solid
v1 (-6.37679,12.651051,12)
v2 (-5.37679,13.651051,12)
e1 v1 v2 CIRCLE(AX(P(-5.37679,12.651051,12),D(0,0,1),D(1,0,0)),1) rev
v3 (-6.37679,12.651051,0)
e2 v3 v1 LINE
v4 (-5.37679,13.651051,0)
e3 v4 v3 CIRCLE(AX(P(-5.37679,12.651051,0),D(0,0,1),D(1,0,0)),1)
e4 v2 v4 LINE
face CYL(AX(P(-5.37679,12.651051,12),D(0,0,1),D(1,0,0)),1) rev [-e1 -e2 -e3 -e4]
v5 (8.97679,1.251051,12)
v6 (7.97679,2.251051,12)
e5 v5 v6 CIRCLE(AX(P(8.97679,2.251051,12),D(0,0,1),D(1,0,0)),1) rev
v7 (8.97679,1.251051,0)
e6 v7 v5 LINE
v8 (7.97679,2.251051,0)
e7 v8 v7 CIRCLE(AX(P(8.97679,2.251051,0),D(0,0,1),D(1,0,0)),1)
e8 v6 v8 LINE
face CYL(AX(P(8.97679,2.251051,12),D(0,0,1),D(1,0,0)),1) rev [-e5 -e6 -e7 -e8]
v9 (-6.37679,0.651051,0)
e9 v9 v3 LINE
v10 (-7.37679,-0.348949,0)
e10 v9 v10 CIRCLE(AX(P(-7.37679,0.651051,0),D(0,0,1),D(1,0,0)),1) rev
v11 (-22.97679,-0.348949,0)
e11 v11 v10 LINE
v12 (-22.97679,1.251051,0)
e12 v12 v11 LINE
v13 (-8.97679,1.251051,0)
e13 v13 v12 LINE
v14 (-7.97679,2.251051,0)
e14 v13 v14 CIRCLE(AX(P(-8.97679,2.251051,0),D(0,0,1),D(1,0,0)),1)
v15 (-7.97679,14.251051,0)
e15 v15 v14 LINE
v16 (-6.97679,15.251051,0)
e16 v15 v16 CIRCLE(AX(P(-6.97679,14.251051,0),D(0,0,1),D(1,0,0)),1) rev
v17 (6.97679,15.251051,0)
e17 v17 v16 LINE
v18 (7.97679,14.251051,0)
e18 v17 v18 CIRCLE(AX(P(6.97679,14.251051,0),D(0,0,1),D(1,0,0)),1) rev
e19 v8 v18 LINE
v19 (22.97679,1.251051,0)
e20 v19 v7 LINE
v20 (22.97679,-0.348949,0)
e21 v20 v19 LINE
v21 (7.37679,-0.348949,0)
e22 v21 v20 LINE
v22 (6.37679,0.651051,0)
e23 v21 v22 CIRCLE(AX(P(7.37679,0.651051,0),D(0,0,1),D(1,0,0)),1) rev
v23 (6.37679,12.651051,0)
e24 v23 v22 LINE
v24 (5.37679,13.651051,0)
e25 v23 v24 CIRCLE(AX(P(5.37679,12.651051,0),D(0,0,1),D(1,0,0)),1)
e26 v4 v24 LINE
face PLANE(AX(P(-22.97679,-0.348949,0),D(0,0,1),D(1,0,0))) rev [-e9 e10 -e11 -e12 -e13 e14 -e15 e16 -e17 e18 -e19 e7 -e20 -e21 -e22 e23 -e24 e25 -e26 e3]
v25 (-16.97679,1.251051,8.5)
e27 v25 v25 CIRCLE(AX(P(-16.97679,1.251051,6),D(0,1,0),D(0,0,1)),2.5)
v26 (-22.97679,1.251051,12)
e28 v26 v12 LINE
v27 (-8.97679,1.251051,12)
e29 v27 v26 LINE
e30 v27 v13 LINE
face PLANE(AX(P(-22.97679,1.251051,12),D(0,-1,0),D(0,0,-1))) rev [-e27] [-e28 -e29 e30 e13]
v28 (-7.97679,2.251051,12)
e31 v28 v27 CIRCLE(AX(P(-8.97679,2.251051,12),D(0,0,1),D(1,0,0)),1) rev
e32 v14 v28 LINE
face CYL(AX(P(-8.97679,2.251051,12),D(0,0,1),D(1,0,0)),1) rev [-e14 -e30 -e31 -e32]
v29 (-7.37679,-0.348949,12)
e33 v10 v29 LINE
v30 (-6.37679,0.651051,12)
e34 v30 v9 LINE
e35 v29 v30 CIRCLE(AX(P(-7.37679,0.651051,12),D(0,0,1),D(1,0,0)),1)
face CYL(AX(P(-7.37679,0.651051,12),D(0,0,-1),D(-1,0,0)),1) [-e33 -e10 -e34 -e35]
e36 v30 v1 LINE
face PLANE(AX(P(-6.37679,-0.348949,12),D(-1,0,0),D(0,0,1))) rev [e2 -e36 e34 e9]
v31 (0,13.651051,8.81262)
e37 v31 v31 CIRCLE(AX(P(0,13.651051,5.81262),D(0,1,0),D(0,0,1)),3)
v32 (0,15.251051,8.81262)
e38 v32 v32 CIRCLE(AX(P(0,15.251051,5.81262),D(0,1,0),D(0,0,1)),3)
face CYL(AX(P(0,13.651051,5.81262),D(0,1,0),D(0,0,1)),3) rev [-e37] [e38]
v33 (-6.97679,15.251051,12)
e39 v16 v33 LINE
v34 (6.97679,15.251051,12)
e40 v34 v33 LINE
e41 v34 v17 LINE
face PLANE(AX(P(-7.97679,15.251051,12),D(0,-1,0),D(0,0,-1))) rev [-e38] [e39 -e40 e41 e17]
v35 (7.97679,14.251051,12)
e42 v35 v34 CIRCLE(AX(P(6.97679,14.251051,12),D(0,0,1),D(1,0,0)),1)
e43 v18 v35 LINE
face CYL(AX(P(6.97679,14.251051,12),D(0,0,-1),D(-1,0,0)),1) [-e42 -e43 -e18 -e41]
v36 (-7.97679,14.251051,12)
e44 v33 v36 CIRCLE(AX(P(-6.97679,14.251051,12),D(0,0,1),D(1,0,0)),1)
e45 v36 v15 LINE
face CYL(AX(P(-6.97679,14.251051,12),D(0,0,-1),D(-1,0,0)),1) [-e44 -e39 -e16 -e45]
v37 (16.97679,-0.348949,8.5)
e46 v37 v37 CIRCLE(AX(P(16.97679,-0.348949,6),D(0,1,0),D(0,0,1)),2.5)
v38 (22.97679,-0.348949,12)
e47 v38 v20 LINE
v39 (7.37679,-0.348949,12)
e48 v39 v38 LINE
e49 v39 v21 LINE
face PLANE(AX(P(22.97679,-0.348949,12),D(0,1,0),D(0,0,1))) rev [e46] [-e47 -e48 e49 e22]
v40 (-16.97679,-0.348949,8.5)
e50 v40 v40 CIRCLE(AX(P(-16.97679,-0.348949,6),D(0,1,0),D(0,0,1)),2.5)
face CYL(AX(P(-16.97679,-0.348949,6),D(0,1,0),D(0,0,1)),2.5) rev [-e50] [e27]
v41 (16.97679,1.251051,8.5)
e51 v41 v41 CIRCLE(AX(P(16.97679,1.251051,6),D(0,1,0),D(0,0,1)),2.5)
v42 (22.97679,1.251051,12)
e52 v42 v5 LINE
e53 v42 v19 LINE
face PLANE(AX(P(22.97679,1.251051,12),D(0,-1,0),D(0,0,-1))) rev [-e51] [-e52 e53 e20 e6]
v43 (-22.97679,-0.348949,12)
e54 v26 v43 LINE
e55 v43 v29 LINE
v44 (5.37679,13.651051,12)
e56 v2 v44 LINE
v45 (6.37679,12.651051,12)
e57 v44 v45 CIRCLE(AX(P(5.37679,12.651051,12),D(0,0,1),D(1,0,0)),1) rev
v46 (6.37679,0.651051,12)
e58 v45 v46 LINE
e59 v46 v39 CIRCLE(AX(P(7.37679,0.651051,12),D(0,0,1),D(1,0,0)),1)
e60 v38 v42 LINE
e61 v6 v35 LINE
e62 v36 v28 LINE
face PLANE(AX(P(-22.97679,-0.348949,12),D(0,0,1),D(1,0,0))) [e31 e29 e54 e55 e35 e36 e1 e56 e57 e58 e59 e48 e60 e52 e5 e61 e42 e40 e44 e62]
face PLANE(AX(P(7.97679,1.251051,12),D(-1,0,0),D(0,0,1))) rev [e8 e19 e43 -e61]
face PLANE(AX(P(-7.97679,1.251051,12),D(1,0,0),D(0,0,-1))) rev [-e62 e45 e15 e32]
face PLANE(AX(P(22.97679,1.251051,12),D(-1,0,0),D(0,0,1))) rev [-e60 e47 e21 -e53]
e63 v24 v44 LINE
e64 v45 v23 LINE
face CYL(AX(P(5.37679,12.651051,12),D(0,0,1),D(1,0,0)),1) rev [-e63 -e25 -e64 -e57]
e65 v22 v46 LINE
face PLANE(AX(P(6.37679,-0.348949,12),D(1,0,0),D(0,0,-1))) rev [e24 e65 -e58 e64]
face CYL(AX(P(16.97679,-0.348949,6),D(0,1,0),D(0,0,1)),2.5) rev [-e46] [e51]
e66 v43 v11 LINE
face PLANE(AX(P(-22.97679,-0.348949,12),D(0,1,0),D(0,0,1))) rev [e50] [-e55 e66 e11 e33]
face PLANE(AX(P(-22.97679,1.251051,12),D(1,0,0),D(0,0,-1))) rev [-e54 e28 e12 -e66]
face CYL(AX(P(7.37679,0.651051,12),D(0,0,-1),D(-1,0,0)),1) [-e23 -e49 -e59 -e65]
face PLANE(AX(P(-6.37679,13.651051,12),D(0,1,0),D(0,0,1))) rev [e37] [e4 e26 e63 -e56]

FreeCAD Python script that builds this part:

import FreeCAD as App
import Part
import Sketcher
from FreeCAD import Vector


def edges_at(feature, points):
    """Names of the edges that pass closest to the given points."""
    edges = feature.Shape.Edges
    near = lambda p: min(range(len(edges)), key=lambda i: edges[i].distToShape(Part.Vertex(*p))[0])
    return sorted({f"Edge{near(p) + 1}" for p in points})


def add_polygon(sketch, points):
    """Adds a closed chain of lines whose ends are joined by coincident constraints."""
    first, n = sketch.GeometryCount, len(points)
    for a, b in zip(points, points[1:] + points[:1]):
        sketch.addGeometry(Part.LineSegment(App.Vector(*a, 0), App.Vector(*b, 0)), False)
    for i in range(n):
        sketch.addConstraint(Sketcher.Constraint("Coincident", first + i, 2, first + (i + 1) % n, 1))

doc = App.newDocument("Part")
body = doc.addObject("PartDesign::Body", "Body")

sketch1 = body.newObject("Sketcher::SketchObject", "Sketch")
sketch1.AttachmentSupport = (doc.getObject("XY_Plane"), [""])
sketch1.MapMode = "FlatFace"
add_polygon(sketch1, [(-8, 1.3), (-23, 1.3), (-23, -0.3), (-6.4, -0.3), (-6.4, 13.7), (6.4, 13.7), (6.4, -0.3), (23, -0.3), (23, 1.3), (8, 1.3), (8, 15.3), (-8, 15.3)])
sketch1.addConstraint([
    Sketcher.Constraint("Horizontal", 0),
    Sketcher.Constraint("Vertical", 1),
    Sketcher.Constraint("Horizontal", 2),
    Sketcher.Constraint("Vertical", 3),
    Sketcher.Constraint("Horizontal", 4),
    Sketcher.Constraint("Vertical", 5),
    Sketcher.Constraint("Horizontal", 6),
    Sketcher.Constraint("Vertical", 7),
    Sketcher.Constraint("Horizontal", 8),
    Sketcher.Constraint("Vertical", 9),
    Sketcher.Constraint("Horizontal", 10),
    Sketcher.Constraint("Vertical", 11),
    Sketcher.Constraint("Symmetric", 2, 2, 5, 2, -2),
    Sketcher.Constraint("Symmetric", 0, 2, 7, 2, -2),
    Sketcher.Constraint("Equal", 0, 8),
    Sketcher.Constraint("Equal", 5, 9),
    Sketcher.Constraint("DistanceX", 0, 2, 0, 1, 15.0),
    Sketcher.Constraint("DistanceY", 3, 1, 3, 2, 14.0),
    Sketcher.Constraint("DistanceX", 2, 1, 2, 2, 16.6),
    Sketcher.Constraint("DistanceY", 1, 2, 1, 1, 1.6),
    Sketcher.Constraint("DistanceX", 4, 1, 4, 2, 12.753579),
    Sketcher.Constraint("DistanceY", -1, 1, 0, 2, 1.251051),
])
pad1 = body.newObject("PartDesign::Pad", "Pad")
pad1.Profile = sketch1
pad1.Length = 12

sketch2 = body.newObject("Sketcher::SketchObject", "Sketch001")
sketch2.AttachmentSupport = (doc.getObject("XZ_Plane"), [""])
sketch2.MapMode = "FlatFace"
sketch2.AttachmentOffset = App.Placement(Vector(0, 0, -1.251051), App.Rotation())
sketch2.addGeometry([
    Part.Circle(Vector(-17, 6, 0), Vector(0, 0, 1), 2.5),
    Part.Circle(Vector(17, 6, 0), Vector(0, 0, 1), 2.5),
], False)
sketch2.addConstraint([
    Sketcher.Constraint("Equal", 0, 1),
    Sketcher.Constraint("Symmetric", 0, 3, 1, 3, -2),
    Sketcher.Constraint("Diameter", 0, 5.0),
    Sketcher.Constraint("DistanceY", -1, 1, 0, 3, 6.0),
    Sketcher.Constraint("DistanceX", 0, 3, -1, 1, 16.97679),
])
pocket1 = body.newObject("PartDesign::Pocket", "Pocket")
pocket1.Profile = sketch2
pocket1.Length = 1.6
pocket1.Reversed = True

sketch3 = body.newObject("Sketcher::SketchObject", "Sketch002")
sketch3.AttachmentSupport = (doc.getObject("XZ_Plane"), [""])
sketch3.MapMode = "FlatFace"
sketch3.AttachmentOffset = App.Placement(Vector(0, 0, -15.251051), App.Rotation())
sketch3.addGeometry(Part.Circle(Vector(0, 5.8, 0), Vector(0, 0, 1), 3), False)
sketch3.addConstraint([
    Sketcher.Constraint("PointOnObject", 0, 3, -2),
    Sketcher.Constraint("Diameter", 0, 6.0),
    Sketcher.Constraint("DistanceY", -1, 1, 0, 3, 5.81262),
])
pocket2 = body.newObject("PartDesign::Pocket", "Pocket001")
pocket2.Profile = sketch3
pocket2.Length = 1.6
pocket2.Reversed = True
doc.recompute()

fillet = body.newObject("PartDesign::Fillet", "Fillet")
fillet.Base = (pocket2, edges_at(pocket2, [(-7.977, 15.251, 6)]))
fillet.Radius = 1
doc.recompute()

fillet2 = body.newObject("PartDesign::Fillet", "Fillet001")
fillet2.Base = (fillet, edges_at(fillet, [(7.977, 15.251, 6)]))
fillet2.Radius = 1
doc.recompute()

fillet3 = body.newObject("PartDesign::Fillet", "Fillet002")
fillet3.Base = (fillet2, edges_at(fillet2, [(-6.377, 13.651, 6)]))
fillet3.Radius = 1
doc.recompute()

fillet4 = body.newObject("PartDesign::Fillet", "Fillet003")
fillet4.Base = (fillet3, edges_at(fillet3, [(-6.377, -0.349, 6)]))
fillet4.Radius = 1
doc.recompute()

fillet5 = body.newObject("PartDesign::Fillet", "Fillet004")
fillet5.Base = (fillet4, edges_at(fillet4, [(6.377, -0.349, 6)]))
fillet5.Radius = 1
doc.recompute()

fillet6 = body.newObject("PartDesign::Fillet", "Fillet005")
fillet6.Base = (fillet5, edges_at(fillet5, [(6.377, 13.651, 6)]))
fillet6.Radius = 1
doc.recompute()

fillet7 = body.newObject("PartDesign::Fillet", "Fillet006")
fillet7.Base = (fillet6, edges_at(fillet6, [(-7.977, 1.251, 6)]))
fillet7.Radius = 1
doc.recompute()

fillet8 = body.newObject("PartDesign::Fillet", "Fillet007")
fillet8.Base = (fillet7, edges_at(fillet7, [(7.977, 1.251, 6)]))
fillet8.Radius = 1

doc.recompute()
